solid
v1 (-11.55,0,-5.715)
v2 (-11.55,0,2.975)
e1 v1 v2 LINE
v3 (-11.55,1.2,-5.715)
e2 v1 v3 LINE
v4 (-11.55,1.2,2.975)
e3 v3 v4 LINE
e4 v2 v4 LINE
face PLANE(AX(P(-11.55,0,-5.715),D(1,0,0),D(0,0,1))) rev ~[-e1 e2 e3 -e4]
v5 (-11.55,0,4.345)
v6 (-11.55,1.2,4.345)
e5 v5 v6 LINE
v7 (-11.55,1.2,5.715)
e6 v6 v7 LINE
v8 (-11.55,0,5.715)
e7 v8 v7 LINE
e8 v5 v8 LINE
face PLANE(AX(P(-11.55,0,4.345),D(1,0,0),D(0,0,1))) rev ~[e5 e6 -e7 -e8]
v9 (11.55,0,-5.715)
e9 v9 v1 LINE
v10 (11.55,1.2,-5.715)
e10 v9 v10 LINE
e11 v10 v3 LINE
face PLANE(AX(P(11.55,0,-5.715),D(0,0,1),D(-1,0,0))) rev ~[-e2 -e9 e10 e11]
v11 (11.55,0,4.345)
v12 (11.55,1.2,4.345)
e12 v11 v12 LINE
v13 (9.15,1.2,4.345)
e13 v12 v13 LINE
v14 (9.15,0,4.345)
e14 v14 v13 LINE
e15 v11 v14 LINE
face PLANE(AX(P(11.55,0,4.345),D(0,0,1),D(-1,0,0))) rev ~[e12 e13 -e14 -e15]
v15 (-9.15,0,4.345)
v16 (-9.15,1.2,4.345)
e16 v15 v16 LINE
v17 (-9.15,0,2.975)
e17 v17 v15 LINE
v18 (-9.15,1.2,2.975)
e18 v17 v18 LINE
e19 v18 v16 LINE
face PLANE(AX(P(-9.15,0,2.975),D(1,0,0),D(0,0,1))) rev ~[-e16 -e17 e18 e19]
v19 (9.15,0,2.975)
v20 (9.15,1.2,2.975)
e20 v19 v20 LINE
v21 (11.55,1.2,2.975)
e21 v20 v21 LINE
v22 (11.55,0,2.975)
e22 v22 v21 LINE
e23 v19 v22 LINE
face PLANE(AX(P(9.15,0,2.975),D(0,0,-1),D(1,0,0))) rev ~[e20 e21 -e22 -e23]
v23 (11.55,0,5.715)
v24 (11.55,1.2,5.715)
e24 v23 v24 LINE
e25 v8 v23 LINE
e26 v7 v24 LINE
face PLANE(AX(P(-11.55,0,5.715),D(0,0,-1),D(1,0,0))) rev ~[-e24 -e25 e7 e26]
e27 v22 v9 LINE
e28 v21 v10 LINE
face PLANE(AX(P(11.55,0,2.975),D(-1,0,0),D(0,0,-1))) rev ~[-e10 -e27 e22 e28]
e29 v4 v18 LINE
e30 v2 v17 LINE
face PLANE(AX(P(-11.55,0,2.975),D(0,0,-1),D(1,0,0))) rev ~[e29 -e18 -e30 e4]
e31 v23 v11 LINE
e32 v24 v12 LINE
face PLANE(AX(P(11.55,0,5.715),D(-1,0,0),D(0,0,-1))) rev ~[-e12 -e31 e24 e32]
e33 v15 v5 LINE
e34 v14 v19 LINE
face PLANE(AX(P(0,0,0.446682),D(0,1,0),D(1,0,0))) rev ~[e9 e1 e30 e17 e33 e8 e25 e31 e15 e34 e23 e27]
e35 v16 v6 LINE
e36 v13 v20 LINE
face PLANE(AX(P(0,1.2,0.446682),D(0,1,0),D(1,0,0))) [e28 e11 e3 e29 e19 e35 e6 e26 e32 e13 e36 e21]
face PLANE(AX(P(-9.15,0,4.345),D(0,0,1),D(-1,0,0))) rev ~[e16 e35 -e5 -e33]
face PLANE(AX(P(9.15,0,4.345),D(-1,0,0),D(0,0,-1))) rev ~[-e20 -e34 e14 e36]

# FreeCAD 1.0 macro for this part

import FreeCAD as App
import Part
import Sketcher


def add_polygon(sketch, points):
    """Adds a closed chain of lines whose ends are joined by coincident constraints."""
    first, n = sketch.GeometryCount, len(points)
    for a, b in zip(points, points[1:] + points[:1]):
        sketch.addGeometry(Part.LineSegment(App.Vector(*a, 0), App.Vector(*b, 0)), False)
    for i in range(n):
        sketch.addConstraint(Sketcher.Constraint("Coincident", first + i, 2, first + (i + 1) % n, 1))

doc = App.newDocument("Part")
params = doc.addObject("Spreadsheet::Sheet", "Params")
for row, (alias, value) in enumerate([
    ("sketch1_width", "23.1 mm"),
    ("sketch1_width2", "2.4 mm"),
    ("sketch1_height", "8.69 mm"),
    ("sketch1_height2", "1.37 mm"),
    ("pad1_length", "1.2 mm"),
], start=1):
    params.set(f"A{row}", alias)
    params.set(f"B{row}", "=" + value)
    params.setAlias(f"B{row}", alias)

body = doc.addObject("PartDesign::Body", "Body")

sketch1 = doc.addObject("Sketcher::SketchObject", "Sketch")
body.addObject(sketch1)
sketch1.AttachmentSupport = (doc.XZ_Plane, [""])
sketch1.MapMode = "FlatFace"
add_polygon(sketch1, [(11.6, -5.7), (-11.6, -5.7), (-11.6, 3), (-9.2, 3), (-9.2, 4.3), (-11.6, 4.3), (-11.6, 5.7), (11.6, 5.7), (11.6, 4.3), (9.2, 4.3), (9.2, 3), (11.6, 3)])
sketch1.addConstraint(Sketcher.Constraint("Horizontal", 0))
sketch1.addConstraint(Sketcher.Constraint("Vertical", 1))
sketch1.addConstraint(Sketcher.Constraint("Horizontal", 2))
sketch1.addConstraint(Sketcher.Constraint("Vertical", 3))
sketch1.addConstraint(Sketcher.Constraint("Horizontal", 4))
sketch1.addConstraint(Sketcher.Constraint("Vertical", 5))
sketch1.addConstraint(Sketcher.Constraint("Horizontal", 6))
sketch1.addConstraint(Sketcher.Constraint("Vertical", 7))
sketch1.addConstraint(Sketcher.Constraint("Horizontal", 8))
sketch1.addConstraint(Sketcher.Constraint("Vertical", 9))
sketch1.addConstraint(Sketcher.Constraint("Horizontal", 10))
sketch1.addConstraint(Sketcher.Constraint("Vertical", 11))
sketch1.addConstraint(Sketcher.Constraint("Symmetric", 0, 2, 6, 2, -1, 1))
sketch1.addConstraint(Sketcher.Constraint("Symmetric", 4, 2, 7, 2, -2))
sketch1.addConstraint(Sketcher.Constraint("Symmetric", 2, 2, 9, 2, -2))
sketch1.addConstraint(Sketcher.Constraint("Vertical", 7, 2, 10, 2))
sketch1.addConstraint(Sketcher.Constraint("Equal", 3, 5))
sketch1.addConstraint(Sketcher.Constraint("DistanceX", 0, 2, 0, 1, 23.1))
sketch1.addConstraint(Sketcher.Constraint("DistanceX", 2, 1, 2, 2, 2.4))
sketch1.addConstraint(Sketcher.Constraint("DistanceY", 1, 1, 1, 2, 8.69))
sketch1.addConstraint(Sketcher.Constraint("DistanceY", 3, 1, 3, 2, 1.37))
sketch1.setExpression("Constraints[29]", "Params.sketch1_width")
sketch1.setExpression("Constraints[30]", "Params.sketch1_width2")
sketch1.setExpression("Constraints[31]", "Params.sketch1_height")
sketch1.setExpression("Constraints[32]", "Params.sketch1_height2")
pad1 = doc.addObject("PartDesign::Pad", "Pad")
body.addObject(pad1)
pad1.Profile = sketch1
pad1.setExpression("Length", "Params.pad1_length")
pad1.Reversed = True

doc.recompute()
